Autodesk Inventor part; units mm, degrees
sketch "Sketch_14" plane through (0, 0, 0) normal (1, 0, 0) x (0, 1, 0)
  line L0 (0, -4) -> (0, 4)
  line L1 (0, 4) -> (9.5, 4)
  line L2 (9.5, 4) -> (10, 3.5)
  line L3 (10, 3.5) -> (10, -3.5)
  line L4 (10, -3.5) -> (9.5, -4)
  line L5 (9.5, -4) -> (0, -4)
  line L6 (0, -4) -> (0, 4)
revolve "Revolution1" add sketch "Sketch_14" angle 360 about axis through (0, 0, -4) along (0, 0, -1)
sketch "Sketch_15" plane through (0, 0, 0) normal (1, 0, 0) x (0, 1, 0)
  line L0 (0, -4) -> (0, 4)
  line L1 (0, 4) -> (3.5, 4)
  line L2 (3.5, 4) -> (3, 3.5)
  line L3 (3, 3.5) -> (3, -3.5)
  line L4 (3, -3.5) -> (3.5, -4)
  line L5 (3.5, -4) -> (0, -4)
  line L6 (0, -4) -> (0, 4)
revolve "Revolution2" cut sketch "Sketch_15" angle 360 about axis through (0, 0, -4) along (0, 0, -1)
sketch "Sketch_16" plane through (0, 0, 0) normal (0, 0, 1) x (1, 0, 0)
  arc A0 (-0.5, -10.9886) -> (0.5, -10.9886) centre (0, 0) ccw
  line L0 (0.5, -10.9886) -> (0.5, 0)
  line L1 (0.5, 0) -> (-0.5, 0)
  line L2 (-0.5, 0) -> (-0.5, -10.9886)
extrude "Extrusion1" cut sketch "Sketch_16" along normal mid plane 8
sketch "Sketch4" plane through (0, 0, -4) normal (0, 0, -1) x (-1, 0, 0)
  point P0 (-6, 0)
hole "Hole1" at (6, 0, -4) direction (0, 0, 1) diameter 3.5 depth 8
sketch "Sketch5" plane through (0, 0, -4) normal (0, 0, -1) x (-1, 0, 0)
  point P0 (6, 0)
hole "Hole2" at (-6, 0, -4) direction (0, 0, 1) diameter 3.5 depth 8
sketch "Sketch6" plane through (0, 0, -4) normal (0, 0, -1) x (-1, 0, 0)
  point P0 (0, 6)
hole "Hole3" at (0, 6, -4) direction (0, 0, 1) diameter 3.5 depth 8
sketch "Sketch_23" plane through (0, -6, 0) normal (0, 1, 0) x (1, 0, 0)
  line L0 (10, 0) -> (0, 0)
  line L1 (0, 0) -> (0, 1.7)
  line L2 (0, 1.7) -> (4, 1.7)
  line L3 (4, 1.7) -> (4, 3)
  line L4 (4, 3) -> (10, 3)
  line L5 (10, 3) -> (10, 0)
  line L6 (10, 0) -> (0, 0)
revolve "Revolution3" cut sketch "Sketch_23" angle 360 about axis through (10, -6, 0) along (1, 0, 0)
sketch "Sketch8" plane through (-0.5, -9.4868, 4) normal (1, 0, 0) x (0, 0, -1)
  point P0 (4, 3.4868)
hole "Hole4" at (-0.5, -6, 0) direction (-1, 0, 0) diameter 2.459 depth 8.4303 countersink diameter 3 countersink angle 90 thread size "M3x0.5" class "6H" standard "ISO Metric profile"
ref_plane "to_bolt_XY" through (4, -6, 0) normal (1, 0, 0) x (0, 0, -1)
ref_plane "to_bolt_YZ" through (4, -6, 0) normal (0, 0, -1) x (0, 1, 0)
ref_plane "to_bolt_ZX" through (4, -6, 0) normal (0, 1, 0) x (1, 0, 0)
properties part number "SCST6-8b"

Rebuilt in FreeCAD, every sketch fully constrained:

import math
import FreeCAD as App
import Part
import Sketcher
Q = App.Units.Quantity


def add_polygon(sketch, points):
    """Adds a closed chain of lines whose ends are joined by coincident constraints."""
    first, n = sketch.GeometryCount, len(points)
    for a, b in zip(points, points[1:] + points[:1]):
        sketch.addGeometry(Part.LineSegment(App.Vector(*a, 0), App.Vector(*b, 0)), False)
    for i in range(n):
        sketch.addConstraint(Sketcher.Constraint("Coincident", first + i, 2, first + (i + 1) % n, 1))

doc = App.newDocument("Part")
body = doc.addObject("PartDesign::Body", "Body")

# Sketch on YZ plane
sketch1 = body.newObject("Sketcher::SketchObject", "Sketch")
sketch1.AttachmentSupport = (doc.getObject("YZ_Plane"), [""])
sketch1.MapMode = "FlatFace"
add_polygon(sketch1, [(0, 4), (0, -4), (9.5, -4), (10, -3.5), (10, 3.5), (9.5, 4)])  # lines 0-5
sketch1.addConstraint([
    Sketcher.Constraint("Vertical", 0),
    Sketcher.Constraint("Horizontal", 1),
    Sketcher.Constraint("Vertical", 3),
    Sketcher.Constraint("Horizontal", 5),
    Sketcher.Constraint("Symmetric", 0, 2, 5, 2, -1, 1),
    Sketcher.Constraint("Perpendicular", 2, 4),
    Sketcher.Constraint("Vertical", 1, 2, 4, 2),
    Sketcher.Constraint("Equal", 2, 4),
    Sketcher.Constraint("DistanceY", 0, 2, 0, 1, Q("8 mm")),
    Sketcher.Constraint("DistanceY", 3, 1, 3, 2, Q("7 mm")),
    Sketcher.Constraint("DistanceX", 1, 1, 1, 2, Q("9.5 mm")),
])
revolution = body.newObject("PartDesign::Revolution", "Revolution")
revolution.Profile = sketch1
revolution.ReferenceAxis = (sketch1, ["V_Axis"])
revolution.Angle = 360

# Sketch on YZ plane
sketch2 = body.newObject("Sketcher::SketchObject", "Sketch001")
sketch2.AttachmentSupport = (doc.getObject("YZ_Plane"), [""])
sketch2.MapMode = "FlatFace"
add_polygon(sketch2, [(0, 4), (0, -4), (3.5, -4), (3, -3.5), (3, 3.5), (3.5, 4)])  # lines 0-5
sketch2.addConstraint([
    Sketcher.Constraint("Vertical", 0),
    Sketcher.Constraint("Horizontal", 1),
    Sketcher.Constraint("Vertical", 3),
    Sketcher.Constraint("Horizontal", 5),
    Sketcher.Constraint("Symmetric", 0, 2, 5, 2, -1, 1),
    Sketcher.Constraint("Perpendicular", 2, 4),
    Sketcher.Constraint("Vertical", 1, 2, 4, 2),
    Sketcher.Constraint("Equal", 2, 4),
    Sketcher.Constraint("DistanceY", 0, 2, 0, 1, Q("8 mm")),
    Sketcher.Constraint("DistanceY", 3, 1, 3, 2, Q("7 mm")),
    Sketcher.Constraint("DistanceX", 1, 1, 1, 2, Q("3.5 mm")),
])
groove = body.newObject("PartDesign::Groove", "Groove")
groove.Profile = sketch2
groove.ReferenceAxis = (sketch2, ["V_Axis"])
groove.Angle = 360

# Sketch on XY plane
sketch3 = body.newObject("Sketcher::SketchObject", "Sketch002")
sketch3.AttachmentSupport = (doc.getObject("XY_Plane"), [""])
sketch3.MapMode = "FlatFace"
sketch3.addGeometry([
    Part.LineSegment(App.Vector(-0.5, 0, 0), App.Vector(-0.5, -11, 0)),
    Part.ArcOfCircle(Part.Circle(App.Vector(0, 0, 0), App.Vector(0, 0, 1), 11), math.radians(-92.61), math.radians(-87.39)),
    Part.LineSegment(App.Vector(0.5, -11, 0), App.Vector(0.5, 0, 0)),
    Part.LineSegment(App.Vector(0.5, 0, 0), App.Vector(-0.5, 0, 0)),
], False)
sketch3.addConstraint([
    Sketcher.Constraint("Coincident", 0, 2, 1, 1),
    Sketcher.Constraint("Coincident", 1, 2, 2, 1),
    Sketcher.Constraint("Coincident", 2, 2, 3, 1),
    Sketcher.Constraint("Coincident", 3, 2, 0, 1),
    Sketcher.Constraint("Vertical", 0),
    Sketcher.Constraint("Vertical", 2),
    Sketcher.Constraint("Horizontal", 3),
    Sketcher.Constraint("Coincident", 1, 3, -1, 1),
    Sketcher.Constraint("Symmetric", 2, 2, 3, 2, -1, 1),
    Sketcher.Constraint("Radius", 1, Q("11 mm")),
    Sketcher.Constraint("DistanceX", 3, 2, 3, 1, Q("1 mm")),
])
pocket1 = body.newObject("PartDesign::Pocket", "Pocket")
pocket1.Profile = sketch3
pocket1.Length = 8
pocket1.Midplane = True

# Sketch on XY plane
sketch4 = body.newObject("Sketcher::SketchObject", "Sketch003")
sketch4.AttachmentSupport = (doc.getObject("XY_Plane"), [""])
sketch4.MapMode = "FlatFace"
sketch4.AttachmentOffset = App.Placement(App.Vector(0, 0, -4), App.Rotation())
sketch4.addGeometry(Part.Circle(App.Vector(6, 0, 0), App.Vector(0, 0, 1), 1.8), False)
sketch4.addConstraint([
    Sketcher.Constraint("PointOnObject", 0, 3, -1),
    Sketcher.Constraint("Diameter", 0, Q("3.5 mm")),
    Sketcher.Constraint("DistanceX", -1, 1, 0, 3, Q("6 mm")),
])
doc.recompute()
hole = body.newObject("PartDesign::Hole", "Hole")
hole.Profile = sketch4
hole.ThreadType = "None"
hole.Diameter = 3.5
hole.DepthType = "Dimension"
hole.Depth = 8
hole.DrillPoint = "Flat"
hole.Reversed = True

# Sketch on XY plane
sketch5 = body.newObject("Sketcher::SketchObject", "Sketch004")
sketch5.AttachmentSupport = (doc.getObject("XY_Plane"), [""])
sketch5.MapMode = "FlatFace"
sketch5.AttachmentOffset = App.Placement(App.Vector(0, 0, -4), App.Rotation())
sketch5.addGeometry(Part.Circle(App.Vector(-6, 0, 0), App.Vector(0, 0, 1), 1.8), False)
sketch5.addConstraint([
    Sketcher.Constraint("PointOnObject", 0, 3, -1),
    Sketcher.Constraint("Diameter", 0, Q("3.5 mm")),
    Sketcher.Constraint("DistanceX", 0, 3, -1, 1, Q("6 mm")),
])
doc.recompute()
hole2 = body.newObject("PartDesign::Hole", "Hole001")
hole2.Profile = sketch5
hole2.ThreadType = "None"
hole2.Diameter = 3.5
hole2.DepthType = "Dimension"
hole2.Depth = 8
hole2.DrillPoint = "Flat"
hole2.Reversed = True

# Sketch on XY plane
sketch6 = body.newObject("Sketcher::SketchObject", "Sketch005")
sketch6.AttachmentSupport = (doc.getObject("XY_Plane"), [""])
sketch6.MapMode = "FlatFace"
sketch6.AttachmentOffset = App.Placement(App.Vector(0, 0, -4), App.Rotation())
sketch6.addGeometry(Part.Circle(App.Vector(0, 6, 0), App.Vector(0, 0, 1), 1.8), False)
sketch6.addConstraint([
    Sketcher.Constraint("PointOnObject", 0, 3, -2),
    Sketcher.Constraint("Diameter", 0, Q("3.5 mm")),
    Sketcher.Constraint("DistanceY", -1, 1, 0, 3, Q("6 mm")),
])
doc.recompute()
hole3 = body.newObject("PartDesign::Hole", "Hole002")
hole3.Profile = sketch6
hole3.ThreadType = "None"
hole3.Diameter = 3.5
hole3.DepthType = "Dimension"
hole3.Depth = 8
hole3.DrillPoint = "Flat"
hole3.Reversed = True

# Sketch on XZ plane
sketch7 = body.newObject("Sketcher::SketchObject", "Sketch006")
sketch7.AttachmentSupport = (doc.getObject("XZ_Plane"), [""])
sketch7.MapMode = "FlatFace"
sketch7.AttachmentOffset = App.Placement(App.Vector(0, 0, 6), App.Rotation())
add_polygon(sketch7, [(0, 0), (10, 0), (10, -3), (4, -3), (4, -1.7), (0, -1.7)])  # lines 0-5
sketch7.addConstraint([
    Sketcher.Constraint("Horizontal", 0),
    Sketcher.Constraint("Vertical", 1),
    Sketcher.Constraint("Horizontal", 2),
    Sketcher.Constraint("Vertical", 3),
    Sketcher.Constraint("Horizontal", 4),
    Sketcher.Constraint("Vertical", 5),
    Sketcher.Constraint("Coincident", 5, 2, -1, 1),
    Sketcher.Constraint("DistanceX", 0, 1, 0, 2, Q("10 mm")),
    Sketcher.Constraint("DistanceX", 2, 2, 2, 1, Q("6 mm")),
    Sketcher.Constraint("DistanceY", 1, 2, 1, 1, Q("3 mm")),
    Sketcher.Constraint("DistanceY", 3, 1, 3, 2, Q("1.3 mm")),
])
groove2 = body.newObject("PartDesign::Groove", "Groove001")
groove2.Profile = sketch7
groove2.ReferenceAxis = (sketch7, ["H_Axis"])
groove2.Angle = 360

# Sketch on YZ plane
sketch8 = body.newObject("Sketcher::SketchObject", "Sketch007")
sketch8.AttachmentSupport = (doc.getObject("YZ_Plane"), [""])
sketch8.MapMode = "FlatFace"
sketch8.AttachmentOffset = App.Placement(App.Vector(0, 0, -0.5), App.Rotation())
sketch8.addGeometry(Part.Circle(App.Vector(-6, 0, 0), App.Vector(0, 0, 1), 1.2), False)
sketch8.addConstraint([
    Sketcher.Constraint("PointOnObject", 0, 3, -1),
    Sketcher.Constraint("Diameter", 0, Q("2.459 mm")),
    Sketcher.Constraint("DistanceX", 0, 3, -1, 1, Q("6 mm")),
])
doc.recompute()
hole4 = body.newObject("PartDesign::Hole", "Hole003")
hole4.Profile = sketch8
hole4.ThreadType = "None"
hole4.Diameter = 2.459
hole4.DepthType = "Dimension"
hole4.Depth = 8.4303
hole4.DrillPoint = "Flat"
hole4.HoleCutType = "Countersink"
hole4.HoleCutDiameter = 3
hole4.HoleCutCountersinkAngle = 90

doc.recompute()
